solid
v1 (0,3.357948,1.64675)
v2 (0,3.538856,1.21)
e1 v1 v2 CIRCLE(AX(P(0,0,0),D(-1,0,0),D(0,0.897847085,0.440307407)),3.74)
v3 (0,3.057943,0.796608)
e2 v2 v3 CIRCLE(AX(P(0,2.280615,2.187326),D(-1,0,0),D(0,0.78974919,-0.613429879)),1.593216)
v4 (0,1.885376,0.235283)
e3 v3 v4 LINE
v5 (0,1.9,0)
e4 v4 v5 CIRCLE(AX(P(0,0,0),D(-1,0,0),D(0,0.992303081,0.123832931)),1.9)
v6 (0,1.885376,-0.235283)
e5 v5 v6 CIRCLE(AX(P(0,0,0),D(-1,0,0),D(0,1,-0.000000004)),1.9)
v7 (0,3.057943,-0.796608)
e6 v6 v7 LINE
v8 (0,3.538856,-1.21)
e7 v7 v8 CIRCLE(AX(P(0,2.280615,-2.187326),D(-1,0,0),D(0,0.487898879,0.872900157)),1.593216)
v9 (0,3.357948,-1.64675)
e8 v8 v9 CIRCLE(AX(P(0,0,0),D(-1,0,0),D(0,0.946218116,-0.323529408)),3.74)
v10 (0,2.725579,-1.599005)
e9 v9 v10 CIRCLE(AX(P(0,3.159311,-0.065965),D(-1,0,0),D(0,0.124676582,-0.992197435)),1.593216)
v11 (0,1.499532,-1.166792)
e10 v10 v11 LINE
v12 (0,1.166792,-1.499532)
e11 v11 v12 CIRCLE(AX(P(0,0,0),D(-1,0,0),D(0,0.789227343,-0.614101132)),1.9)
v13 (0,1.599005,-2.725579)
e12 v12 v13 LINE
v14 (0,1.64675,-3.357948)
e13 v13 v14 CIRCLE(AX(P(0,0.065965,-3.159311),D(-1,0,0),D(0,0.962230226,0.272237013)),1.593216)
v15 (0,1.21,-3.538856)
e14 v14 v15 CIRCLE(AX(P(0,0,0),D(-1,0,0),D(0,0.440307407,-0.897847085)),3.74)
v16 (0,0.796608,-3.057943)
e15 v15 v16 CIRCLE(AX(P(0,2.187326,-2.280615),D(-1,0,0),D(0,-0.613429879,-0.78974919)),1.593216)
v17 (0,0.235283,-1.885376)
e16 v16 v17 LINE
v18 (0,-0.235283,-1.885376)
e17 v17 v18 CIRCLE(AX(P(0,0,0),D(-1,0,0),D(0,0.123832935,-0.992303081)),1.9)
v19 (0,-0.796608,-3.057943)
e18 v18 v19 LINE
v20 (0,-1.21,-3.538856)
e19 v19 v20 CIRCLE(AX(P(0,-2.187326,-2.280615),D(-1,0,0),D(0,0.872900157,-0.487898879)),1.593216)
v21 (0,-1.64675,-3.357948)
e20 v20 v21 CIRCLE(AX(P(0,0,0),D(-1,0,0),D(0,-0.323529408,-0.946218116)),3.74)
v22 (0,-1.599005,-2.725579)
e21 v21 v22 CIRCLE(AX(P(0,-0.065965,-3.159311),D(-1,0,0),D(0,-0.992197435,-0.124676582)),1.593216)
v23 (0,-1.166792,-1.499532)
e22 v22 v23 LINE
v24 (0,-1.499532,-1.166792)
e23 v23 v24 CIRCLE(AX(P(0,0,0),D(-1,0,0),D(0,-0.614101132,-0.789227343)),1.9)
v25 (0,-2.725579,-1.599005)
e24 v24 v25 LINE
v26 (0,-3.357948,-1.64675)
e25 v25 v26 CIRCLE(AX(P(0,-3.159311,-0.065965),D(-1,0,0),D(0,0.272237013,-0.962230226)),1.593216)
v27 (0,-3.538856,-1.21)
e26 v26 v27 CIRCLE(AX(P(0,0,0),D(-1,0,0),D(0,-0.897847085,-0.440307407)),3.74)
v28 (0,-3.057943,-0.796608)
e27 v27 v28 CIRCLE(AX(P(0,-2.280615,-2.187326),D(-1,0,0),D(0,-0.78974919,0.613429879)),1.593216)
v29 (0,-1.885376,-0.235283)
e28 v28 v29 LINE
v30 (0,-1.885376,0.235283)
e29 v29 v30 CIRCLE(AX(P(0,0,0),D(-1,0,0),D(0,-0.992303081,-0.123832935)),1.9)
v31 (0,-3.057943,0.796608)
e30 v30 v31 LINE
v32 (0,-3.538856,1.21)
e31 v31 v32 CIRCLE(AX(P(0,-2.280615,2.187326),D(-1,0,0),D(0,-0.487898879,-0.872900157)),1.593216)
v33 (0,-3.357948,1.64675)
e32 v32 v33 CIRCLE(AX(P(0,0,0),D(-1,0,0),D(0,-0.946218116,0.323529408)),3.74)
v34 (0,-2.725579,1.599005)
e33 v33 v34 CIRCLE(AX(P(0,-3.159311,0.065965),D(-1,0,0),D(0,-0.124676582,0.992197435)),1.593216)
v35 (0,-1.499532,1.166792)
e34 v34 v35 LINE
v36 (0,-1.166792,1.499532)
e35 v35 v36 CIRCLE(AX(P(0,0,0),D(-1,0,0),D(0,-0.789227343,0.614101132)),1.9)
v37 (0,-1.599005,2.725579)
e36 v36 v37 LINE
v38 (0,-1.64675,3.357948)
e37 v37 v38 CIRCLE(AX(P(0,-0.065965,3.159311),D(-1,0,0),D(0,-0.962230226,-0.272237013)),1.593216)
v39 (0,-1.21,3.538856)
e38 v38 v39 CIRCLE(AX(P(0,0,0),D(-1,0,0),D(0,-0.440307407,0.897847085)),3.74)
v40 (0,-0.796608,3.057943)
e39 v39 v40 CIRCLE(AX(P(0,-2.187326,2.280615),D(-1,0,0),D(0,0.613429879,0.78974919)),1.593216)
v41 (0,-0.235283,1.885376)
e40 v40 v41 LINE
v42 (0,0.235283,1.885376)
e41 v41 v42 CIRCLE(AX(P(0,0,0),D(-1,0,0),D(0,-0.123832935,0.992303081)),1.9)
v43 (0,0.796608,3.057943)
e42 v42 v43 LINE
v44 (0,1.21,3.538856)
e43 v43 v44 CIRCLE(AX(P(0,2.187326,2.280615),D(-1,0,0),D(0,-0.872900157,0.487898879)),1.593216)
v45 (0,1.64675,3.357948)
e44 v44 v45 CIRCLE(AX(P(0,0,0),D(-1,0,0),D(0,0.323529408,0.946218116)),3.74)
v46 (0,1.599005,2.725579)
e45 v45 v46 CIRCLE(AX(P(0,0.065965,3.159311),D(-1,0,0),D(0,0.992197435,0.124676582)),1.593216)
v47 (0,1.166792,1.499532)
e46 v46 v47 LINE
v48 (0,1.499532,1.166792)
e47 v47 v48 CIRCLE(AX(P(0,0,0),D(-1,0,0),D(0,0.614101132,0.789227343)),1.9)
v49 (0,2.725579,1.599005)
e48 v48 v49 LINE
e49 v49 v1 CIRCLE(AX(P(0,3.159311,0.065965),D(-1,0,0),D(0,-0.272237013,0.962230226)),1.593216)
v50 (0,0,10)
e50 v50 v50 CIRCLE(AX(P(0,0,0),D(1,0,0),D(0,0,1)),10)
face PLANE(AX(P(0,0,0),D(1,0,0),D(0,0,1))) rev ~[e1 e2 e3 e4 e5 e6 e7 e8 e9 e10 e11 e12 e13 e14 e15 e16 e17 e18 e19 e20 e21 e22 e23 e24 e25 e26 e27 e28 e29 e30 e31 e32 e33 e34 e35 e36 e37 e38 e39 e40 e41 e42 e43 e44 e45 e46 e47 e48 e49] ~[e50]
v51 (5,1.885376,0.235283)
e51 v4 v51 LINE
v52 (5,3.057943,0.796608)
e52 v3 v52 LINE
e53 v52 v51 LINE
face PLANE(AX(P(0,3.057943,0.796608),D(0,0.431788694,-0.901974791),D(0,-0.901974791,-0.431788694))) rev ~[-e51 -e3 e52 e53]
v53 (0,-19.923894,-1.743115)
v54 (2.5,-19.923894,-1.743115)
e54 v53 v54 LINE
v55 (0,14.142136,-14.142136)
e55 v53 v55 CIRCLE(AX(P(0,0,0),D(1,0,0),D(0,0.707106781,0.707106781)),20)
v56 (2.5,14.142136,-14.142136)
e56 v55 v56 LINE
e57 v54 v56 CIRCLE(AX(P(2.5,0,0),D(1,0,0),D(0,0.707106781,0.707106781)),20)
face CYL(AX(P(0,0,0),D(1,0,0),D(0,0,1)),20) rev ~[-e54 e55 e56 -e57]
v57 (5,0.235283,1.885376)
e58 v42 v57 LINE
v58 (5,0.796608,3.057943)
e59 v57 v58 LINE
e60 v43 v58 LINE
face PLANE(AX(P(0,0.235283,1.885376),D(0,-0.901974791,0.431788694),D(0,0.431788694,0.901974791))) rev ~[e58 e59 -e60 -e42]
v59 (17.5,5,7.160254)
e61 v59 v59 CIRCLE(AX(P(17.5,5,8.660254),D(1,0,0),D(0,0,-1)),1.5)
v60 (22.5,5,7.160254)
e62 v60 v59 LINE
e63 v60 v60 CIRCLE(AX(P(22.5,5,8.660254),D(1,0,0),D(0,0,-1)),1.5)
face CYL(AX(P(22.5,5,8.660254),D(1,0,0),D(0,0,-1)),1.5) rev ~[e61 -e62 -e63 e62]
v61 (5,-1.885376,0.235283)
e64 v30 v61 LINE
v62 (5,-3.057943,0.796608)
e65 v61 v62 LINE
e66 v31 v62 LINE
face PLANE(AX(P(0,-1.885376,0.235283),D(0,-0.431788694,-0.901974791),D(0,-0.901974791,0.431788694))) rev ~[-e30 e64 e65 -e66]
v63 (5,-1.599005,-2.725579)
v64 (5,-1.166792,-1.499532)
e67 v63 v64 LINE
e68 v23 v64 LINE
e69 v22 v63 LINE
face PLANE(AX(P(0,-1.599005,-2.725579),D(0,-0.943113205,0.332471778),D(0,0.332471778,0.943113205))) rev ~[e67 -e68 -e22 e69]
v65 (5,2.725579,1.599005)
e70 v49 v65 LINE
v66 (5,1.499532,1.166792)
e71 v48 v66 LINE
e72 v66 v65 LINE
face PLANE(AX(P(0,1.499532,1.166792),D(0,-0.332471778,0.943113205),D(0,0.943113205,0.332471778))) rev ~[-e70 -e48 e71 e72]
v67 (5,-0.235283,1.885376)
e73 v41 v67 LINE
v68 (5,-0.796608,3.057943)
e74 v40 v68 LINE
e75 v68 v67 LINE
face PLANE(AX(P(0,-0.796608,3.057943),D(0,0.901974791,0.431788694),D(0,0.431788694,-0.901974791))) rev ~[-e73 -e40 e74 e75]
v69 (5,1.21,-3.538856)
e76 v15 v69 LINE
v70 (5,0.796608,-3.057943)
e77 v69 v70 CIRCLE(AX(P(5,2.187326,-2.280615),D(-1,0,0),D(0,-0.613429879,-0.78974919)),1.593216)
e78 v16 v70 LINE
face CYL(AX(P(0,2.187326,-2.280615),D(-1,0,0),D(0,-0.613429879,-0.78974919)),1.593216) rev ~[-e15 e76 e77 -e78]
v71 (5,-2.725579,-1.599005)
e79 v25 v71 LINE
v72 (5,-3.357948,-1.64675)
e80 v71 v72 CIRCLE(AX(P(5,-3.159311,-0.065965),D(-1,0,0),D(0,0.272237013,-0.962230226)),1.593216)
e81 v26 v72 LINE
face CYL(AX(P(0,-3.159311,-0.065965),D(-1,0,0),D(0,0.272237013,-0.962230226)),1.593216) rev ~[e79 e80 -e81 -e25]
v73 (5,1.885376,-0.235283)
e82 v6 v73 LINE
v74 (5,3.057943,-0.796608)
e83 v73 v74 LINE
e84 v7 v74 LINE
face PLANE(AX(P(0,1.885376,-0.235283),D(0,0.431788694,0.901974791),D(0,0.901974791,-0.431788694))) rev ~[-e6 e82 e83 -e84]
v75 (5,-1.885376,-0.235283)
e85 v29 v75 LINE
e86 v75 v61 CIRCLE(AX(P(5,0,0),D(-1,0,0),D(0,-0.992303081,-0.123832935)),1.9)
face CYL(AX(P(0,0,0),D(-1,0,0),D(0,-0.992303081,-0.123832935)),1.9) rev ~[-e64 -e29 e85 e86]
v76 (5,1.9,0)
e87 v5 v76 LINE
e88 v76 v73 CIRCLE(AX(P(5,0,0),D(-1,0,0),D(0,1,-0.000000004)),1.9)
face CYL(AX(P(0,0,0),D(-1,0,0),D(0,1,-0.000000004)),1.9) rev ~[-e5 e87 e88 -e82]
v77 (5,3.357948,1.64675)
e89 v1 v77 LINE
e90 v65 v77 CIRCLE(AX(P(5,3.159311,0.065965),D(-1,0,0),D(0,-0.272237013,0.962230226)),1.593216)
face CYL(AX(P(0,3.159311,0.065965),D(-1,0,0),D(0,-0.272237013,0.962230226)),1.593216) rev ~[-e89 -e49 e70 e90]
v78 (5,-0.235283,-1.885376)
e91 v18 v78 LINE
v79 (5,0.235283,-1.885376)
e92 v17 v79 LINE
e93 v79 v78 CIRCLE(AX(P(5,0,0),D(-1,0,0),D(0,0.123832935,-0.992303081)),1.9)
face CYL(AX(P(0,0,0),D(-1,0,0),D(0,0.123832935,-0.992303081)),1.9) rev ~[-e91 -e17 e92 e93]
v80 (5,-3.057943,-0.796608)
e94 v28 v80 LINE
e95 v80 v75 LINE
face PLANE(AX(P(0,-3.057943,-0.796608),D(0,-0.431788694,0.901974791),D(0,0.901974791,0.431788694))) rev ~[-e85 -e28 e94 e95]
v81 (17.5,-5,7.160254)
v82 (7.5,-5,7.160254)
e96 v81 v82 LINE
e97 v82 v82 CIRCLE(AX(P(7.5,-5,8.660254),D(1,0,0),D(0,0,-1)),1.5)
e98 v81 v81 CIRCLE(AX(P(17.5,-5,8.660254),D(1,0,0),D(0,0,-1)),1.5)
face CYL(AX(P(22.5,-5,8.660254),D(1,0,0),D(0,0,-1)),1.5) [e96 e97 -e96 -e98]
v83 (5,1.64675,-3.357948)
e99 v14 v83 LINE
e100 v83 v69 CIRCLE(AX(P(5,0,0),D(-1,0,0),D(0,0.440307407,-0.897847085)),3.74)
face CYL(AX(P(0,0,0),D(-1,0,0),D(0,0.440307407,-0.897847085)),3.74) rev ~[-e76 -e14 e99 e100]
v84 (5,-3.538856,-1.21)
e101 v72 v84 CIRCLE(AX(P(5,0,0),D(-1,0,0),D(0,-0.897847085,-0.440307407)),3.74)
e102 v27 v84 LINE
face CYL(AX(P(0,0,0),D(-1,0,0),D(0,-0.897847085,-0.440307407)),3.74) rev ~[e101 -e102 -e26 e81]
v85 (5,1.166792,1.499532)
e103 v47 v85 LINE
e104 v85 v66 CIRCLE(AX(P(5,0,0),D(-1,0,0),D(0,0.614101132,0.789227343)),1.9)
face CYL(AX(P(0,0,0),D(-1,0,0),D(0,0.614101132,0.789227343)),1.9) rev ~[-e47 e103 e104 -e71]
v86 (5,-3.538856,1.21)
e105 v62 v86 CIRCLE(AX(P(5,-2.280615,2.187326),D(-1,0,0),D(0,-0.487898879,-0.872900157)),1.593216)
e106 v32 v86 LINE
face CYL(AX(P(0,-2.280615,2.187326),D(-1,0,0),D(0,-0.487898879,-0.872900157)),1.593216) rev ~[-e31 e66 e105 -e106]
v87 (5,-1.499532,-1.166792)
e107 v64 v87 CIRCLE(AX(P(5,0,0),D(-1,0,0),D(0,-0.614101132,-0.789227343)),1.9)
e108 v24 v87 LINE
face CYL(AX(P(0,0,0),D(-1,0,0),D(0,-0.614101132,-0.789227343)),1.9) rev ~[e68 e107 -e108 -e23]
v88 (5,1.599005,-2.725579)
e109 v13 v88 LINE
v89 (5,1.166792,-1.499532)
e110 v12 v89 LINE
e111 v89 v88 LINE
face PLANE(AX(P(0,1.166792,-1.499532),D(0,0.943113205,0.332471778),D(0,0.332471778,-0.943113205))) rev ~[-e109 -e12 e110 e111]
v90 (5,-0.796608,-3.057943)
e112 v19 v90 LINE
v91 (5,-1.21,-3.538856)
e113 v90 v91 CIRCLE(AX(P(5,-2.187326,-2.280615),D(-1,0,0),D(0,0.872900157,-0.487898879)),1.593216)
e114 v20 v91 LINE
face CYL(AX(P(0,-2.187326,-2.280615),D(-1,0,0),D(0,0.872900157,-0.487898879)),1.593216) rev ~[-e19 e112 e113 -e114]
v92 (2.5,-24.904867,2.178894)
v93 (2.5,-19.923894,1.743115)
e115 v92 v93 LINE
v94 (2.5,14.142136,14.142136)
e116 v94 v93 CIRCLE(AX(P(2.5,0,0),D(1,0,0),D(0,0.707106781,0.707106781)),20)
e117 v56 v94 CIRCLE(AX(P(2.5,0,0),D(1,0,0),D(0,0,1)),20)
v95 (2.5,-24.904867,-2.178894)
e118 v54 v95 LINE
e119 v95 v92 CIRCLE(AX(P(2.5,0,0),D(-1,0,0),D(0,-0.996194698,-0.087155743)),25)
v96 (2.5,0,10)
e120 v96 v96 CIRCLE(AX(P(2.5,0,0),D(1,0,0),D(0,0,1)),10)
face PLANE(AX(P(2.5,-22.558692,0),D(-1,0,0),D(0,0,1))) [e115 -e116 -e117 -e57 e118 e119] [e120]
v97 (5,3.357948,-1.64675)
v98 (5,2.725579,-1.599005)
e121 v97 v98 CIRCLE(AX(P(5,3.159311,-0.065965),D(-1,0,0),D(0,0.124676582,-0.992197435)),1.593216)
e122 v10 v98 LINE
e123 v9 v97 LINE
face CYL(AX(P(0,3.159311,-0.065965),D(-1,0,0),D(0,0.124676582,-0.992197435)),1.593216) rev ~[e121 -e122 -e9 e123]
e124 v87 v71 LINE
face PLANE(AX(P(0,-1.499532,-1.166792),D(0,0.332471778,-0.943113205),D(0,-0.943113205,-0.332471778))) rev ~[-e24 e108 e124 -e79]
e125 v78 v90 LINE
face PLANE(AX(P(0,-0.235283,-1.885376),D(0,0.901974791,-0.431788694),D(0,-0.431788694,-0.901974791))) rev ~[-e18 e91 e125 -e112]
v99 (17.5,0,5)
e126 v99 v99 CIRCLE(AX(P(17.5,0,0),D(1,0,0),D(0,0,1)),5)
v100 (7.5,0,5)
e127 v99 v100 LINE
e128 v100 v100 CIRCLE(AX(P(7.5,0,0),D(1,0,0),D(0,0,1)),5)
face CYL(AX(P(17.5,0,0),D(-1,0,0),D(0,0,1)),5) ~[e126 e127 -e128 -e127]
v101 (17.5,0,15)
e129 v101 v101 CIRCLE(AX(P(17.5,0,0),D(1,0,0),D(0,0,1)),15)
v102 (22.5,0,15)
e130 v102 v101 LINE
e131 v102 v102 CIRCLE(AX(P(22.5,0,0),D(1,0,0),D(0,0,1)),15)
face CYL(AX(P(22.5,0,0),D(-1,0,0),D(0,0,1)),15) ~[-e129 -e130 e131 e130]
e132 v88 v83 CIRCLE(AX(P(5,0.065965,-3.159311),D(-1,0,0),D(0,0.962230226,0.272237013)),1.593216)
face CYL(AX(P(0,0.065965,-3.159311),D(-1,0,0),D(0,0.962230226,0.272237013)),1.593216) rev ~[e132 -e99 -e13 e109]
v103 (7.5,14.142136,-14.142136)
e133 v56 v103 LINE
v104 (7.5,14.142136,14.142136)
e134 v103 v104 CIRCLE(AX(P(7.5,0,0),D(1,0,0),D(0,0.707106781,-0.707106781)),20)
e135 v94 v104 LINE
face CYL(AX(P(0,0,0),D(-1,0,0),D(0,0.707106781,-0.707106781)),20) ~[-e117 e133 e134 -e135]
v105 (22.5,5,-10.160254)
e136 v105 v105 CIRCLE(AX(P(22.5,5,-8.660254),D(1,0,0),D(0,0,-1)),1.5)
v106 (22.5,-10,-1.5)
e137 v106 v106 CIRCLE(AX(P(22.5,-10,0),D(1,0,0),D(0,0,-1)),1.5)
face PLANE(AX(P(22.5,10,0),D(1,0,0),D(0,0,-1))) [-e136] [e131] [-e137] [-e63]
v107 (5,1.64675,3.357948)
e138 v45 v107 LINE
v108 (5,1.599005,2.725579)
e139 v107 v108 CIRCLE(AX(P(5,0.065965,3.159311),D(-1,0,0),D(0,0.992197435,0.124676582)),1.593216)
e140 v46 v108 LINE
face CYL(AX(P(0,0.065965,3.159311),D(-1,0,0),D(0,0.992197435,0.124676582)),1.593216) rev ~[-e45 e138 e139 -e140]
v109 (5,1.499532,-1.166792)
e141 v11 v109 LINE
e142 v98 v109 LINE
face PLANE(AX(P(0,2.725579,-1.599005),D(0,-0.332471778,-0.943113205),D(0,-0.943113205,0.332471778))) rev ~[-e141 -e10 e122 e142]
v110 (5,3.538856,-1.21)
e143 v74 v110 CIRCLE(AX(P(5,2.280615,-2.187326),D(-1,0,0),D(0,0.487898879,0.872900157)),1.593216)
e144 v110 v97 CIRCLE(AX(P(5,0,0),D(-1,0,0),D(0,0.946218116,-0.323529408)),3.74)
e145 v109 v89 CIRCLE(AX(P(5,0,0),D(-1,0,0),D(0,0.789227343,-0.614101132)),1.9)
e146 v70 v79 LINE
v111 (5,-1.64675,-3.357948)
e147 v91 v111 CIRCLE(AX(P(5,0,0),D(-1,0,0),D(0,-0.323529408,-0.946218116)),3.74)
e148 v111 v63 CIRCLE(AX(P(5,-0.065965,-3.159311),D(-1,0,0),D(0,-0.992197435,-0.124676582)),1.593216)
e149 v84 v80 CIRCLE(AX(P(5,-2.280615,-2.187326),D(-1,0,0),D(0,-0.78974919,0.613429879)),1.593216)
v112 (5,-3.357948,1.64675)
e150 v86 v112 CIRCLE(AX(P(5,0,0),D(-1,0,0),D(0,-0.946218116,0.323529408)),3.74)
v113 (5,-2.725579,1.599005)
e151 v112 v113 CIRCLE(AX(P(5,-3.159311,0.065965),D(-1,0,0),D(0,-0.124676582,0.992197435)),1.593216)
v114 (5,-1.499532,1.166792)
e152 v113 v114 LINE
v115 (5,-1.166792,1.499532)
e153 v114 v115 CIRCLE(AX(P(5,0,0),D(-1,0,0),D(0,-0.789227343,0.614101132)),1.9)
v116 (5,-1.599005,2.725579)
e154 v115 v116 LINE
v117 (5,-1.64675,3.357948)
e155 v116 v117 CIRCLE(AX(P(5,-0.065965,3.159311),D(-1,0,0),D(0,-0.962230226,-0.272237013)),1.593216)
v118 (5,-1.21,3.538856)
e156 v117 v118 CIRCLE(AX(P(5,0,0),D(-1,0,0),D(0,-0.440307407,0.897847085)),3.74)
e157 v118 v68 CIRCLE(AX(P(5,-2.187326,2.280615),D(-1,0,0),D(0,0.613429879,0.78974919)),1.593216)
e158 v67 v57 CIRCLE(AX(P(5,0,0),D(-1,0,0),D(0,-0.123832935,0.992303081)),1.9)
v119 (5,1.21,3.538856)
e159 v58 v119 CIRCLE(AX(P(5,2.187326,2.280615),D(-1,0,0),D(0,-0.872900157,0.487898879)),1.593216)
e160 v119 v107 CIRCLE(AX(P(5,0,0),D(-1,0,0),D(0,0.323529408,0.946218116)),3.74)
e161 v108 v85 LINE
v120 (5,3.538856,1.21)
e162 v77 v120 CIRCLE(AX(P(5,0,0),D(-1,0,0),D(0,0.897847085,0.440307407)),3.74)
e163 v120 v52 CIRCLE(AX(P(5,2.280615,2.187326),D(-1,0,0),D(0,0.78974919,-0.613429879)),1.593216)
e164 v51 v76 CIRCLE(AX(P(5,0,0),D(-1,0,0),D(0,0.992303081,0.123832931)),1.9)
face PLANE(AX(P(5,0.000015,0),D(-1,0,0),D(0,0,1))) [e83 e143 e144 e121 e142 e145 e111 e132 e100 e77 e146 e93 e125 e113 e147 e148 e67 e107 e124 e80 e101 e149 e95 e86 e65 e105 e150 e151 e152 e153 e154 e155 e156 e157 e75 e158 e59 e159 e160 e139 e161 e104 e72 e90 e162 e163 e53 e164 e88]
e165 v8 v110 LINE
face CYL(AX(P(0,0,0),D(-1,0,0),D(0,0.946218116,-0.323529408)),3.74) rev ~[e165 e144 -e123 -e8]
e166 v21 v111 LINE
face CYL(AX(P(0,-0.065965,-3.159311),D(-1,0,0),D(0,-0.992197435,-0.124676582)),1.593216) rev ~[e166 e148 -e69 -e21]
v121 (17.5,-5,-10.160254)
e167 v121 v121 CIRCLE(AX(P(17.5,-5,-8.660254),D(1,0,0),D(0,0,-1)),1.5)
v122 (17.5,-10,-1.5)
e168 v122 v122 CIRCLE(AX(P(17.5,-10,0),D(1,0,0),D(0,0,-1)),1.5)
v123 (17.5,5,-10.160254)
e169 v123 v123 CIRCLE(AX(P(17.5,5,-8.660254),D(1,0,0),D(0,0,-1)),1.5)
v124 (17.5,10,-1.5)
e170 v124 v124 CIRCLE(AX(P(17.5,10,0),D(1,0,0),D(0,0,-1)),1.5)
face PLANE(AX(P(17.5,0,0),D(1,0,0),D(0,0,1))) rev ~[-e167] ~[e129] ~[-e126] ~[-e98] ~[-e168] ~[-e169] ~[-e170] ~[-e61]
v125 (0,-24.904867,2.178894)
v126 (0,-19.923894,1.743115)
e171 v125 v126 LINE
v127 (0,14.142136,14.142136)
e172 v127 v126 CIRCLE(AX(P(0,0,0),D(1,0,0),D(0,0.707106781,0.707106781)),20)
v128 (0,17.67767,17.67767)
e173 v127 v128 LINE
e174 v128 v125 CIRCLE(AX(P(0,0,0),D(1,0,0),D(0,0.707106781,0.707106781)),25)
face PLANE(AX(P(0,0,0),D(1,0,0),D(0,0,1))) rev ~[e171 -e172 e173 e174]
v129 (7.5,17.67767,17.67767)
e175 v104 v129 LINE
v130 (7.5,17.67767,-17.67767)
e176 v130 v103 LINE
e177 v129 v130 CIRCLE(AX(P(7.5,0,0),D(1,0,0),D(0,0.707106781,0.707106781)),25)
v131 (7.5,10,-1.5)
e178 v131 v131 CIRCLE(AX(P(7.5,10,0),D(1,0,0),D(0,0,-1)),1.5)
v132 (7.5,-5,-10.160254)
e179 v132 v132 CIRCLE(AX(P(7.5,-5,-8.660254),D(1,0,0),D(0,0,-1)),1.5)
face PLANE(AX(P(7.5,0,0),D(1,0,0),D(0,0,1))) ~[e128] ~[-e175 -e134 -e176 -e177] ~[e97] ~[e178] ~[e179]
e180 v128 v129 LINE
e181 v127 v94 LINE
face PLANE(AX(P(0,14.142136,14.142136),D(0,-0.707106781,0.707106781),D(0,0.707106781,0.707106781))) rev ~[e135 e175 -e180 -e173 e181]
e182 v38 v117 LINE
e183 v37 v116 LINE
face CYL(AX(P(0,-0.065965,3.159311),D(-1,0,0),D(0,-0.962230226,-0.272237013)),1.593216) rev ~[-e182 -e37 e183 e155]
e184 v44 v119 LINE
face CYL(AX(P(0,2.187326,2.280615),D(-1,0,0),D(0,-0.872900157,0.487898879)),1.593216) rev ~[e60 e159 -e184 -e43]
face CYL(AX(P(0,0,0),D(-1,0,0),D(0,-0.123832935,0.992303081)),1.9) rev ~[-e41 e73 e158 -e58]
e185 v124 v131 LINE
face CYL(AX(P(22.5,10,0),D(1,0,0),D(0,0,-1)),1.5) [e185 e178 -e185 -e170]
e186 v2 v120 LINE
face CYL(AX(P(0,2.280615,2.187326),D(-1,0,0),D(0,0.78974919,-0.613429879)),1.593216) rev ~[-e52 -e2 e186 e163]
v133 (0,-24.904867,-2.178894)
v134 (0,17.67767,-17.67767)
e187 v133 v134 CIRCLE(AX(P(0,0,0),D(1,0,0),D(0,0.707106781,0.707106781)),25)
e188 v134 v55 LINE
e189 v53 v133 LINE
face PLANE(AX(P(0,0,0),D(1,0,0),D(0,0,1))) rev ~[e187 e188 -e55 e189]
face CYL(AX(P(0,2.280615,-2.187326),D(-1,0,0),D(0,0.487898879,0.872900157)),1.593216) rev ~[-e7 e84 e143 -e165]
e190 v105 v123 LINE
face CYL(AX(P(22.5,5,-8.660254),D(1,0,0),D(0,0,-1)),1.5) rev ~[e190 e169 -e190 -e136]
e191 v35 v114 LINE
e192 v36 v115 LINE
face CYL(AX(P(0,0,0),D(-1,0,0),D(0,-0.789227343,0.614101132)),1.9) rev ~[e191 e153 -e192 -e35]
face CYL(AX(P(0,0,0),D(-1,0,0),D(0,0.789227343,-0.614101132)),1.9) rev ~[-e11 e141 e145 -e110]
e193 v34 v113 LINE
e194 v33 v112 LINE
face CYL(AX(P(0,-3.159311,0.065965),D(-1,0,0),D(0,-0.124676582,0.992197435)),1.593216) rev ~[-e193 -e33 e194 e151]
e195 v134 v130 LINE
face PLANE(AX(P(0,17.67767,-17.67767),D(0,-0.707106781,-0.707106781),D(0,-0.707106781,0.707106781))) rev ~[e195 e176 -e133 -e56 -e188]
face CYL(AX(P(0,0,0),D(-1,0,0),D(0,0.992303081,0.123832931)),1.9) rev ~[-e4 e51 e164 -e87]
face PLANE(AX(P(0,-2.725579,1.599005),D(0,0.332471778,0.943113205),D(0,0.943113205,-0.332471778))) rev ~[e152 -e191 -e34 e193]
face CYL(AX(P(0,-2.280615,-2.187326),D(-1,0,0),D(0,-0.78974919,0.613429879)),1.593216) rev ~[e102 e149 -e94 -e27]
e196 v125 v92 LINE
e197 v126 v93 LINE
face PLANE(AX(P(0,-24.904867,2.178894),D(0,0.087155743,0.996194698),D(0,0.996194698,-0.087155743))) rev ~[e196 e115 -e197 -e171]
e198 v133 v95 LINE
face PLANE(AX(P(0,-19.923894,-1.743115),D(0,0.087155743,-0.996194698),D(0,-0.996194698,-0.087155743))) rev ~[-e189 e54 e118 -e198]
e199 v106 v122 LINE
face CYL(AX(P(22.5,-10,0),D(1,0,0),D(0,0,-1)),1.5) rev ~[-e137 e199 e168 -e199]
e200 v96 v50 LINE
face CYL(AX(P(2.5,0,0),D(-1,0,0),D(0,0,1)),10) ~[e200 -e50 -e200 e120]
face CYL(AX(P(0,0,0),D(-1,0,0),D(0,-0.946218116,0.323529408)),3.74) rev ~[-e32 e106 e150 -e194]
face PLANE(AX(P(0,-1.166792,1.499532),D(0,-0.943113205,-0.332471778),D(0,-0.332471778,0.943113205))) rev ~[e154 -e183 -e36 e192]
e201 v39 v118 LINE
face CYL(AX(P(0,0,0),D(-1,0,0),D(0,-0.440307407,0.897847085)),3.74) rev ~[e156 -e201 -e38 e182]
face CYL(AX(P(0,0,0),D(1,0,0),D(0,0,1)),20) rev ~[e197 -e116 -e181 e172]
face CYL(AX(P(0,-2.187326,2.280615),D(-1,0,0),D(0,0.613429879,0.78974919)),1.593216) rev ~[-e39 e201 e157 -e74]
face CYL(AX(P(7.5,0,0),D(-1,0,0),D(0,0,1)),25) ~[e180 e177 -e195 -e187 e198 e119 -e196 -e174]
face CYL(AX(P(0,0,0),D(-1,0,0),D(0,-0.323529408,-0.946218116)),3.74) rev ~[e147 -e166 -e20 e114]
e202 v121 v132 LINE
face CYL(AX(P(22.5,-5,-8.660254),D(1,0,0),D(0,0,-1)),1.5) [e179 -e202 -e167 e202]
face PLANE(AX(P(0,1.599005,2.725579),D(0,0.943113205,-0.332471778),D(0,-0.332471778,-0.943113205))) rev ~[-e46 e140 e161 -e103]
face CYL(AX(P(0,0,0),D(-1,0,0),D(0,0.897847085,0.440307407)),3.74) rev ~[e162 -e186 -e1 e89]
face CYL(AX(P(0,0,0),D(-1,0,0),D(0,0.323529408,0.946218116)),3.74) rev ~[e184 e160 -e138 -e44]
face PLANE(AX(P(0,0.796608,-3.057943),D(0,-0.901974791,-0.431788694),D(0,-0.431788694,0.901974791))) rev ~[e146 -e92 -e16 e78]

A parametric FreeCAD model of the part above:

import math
import FreeCAD as App
import Part
import Sketcher
Q = App.Units.Quantity


def add_polygon(sketch, points):
    """Adds a closed chain of lines whose ends are joined by coincident constraints."""
    first, n = sketch.GeometryCount, len(points)
    for a, b in zip(points, points[1:] + points[:1]):
        sketch.addGeometry(Part.LineSegment(App.Vector(*a, 0), App.Vector(*b, 0)), False)
    for i in range(n):
        sketch.addConstraint(Sketcher.Constraint("Coincident", first + i, 2, first + (i + 1) % n, 1))

doc = App.newDocument("Part")
params = doc.addObject("Spreadsheet::Sheet", "Params")
for row, (alias, value) in enumerate([
    ("sketch1_width", "5 mm"),
    ("sketch1_width2", "10 mm"),
    ("sketch1_height", "15 mm"),
    ("sketch1_width3", "22.5 mm"),
    ("sketch1_width4", "2.5 mm"),
    ("revolution_angle", "360 deg"),
    ("sketch2_radius", "20 mm"),
    ("sketch2_radius2", "25 mm"),
    ("pocket1_length", "7.5 mm"),
    ("sketch3_radius", "20 mm"),
    ("sketch3_radius2", "25 mm"),
    ("pocket2_length", "2.5 mm"),
    ("sketch4_diameter", "3 mm"),
    ("pocket3_length", "5 mm"),
    ("sketch5_diameter", "3 mm"),
    ("pad1_length", "15 mm"),
    ("sketch6_radius", "1.9 mm"),
    ("sketch6_radius2", "3.74 mm"),
    ("sketch6_length", "1.3 mm"),
    ("pocket4_length", "5 mm"),
], start=1):
    params.set(f"A{row}", alias)
    params.set(f"B{row}", "=" + value)
    params.setAlias(f"B{row}", alias)

body = doc.addObject("PartDesign::Body", "Body")

sketch1 = body.newObject("Sketcher::SketchObject", "Sketch")
sketch1.AttachmentSupport = (doc.getObject("XZ_Plane"), [""])
sketch1.MapMode = "FlatFace"
add_polygon(sketch1, [(0, 0), (22.5, 0), (22.5, -15), (17.5, -15), (17.5, -5), (7.5, -5), (7.5, -25), (0, -25), (0, -20), (2.5, -20), (2.5, -10), (0, -10)])
sketch1.addConstraint([
    Sketcher.Constraint("Horizontal", 0),
    Sketcher.Constraint("Vertical", 1),
    Sketcher.Constraint("Horizontal", 2),
    Sketcher.Constraint("Vertical", 3),
    Sketcher.Constraint("Horizontal", 4),
    Sketcher.Constraint("Vertical", 5),
    Sketcher.Constraint("Horizontal", 6),
    Sketcher.Constraint("Vertical", 7),
    Sketcher.Constraint("Horizontal", 8),
    Sketcher.Constraint("Vertical", 9),
    Sketcher.Constraint("Horizontal", 10),
    Sketcher.Constraint("Vertical", 11),
    Sketcher.Constraint("Coincident", 11, 2, -1, 1),
    Sketcher.Constraint("PointOnObject", 6, 2, -2),
    Sketcher.Constraint("Equal", 4, 3),
    Sketcher.Constraint("Equal", 2, 7),
    Sketcher.Constraint("Equal", 3, 9),
    Sketcher.Constraint("Equal", 9, 11),
    Sketcher.Constraint("DistanceX", 2, 2, 2, 1, Q("5 mm")),
    Sketcher.Constraint("DistanceX", 4, 2, 4, 1, Q("10 mm")),
    Sketcher.Constraint("DistanceY", 1, 2, 1, 1, Q("15 mm")),
    Sketcher.Constraint("DistanceX", 0, 1, 0, 2, Q("22.5 mm")),
    Sketcher.Constraint("DistanceX", 8, 1, 8, 2, Q("2.5 mm")),
])
sketch1.setExpression("Constraints[30]", "Params.sketch1_width")
sketch1.setExpression("Constraints[31]", "Params.sketch1_width2")
sketch1.setExpression("Constraints[32]", "Params.sketch1_height")
sketch1.setExpression("Constraints[33]", "Params.sketch1_width3")
sketch1.setExpression("Constraints[34]", "Params.sketch1_width4")
revolution = body.newObject("PartDesign::Revolution", "Revolution")
revolution.Profile = sketch1
revolution.ReferenceAxis = (sketch1, ["H_Axis"])
revolution.setExpression("Angle", "Params.revolution_angle")

sketch2 = body.newObject("Sketcher::SketchObject", "Sketch001")
sketch2.AttachmentSupport = (doc.getObject("YZ_Plane"), [""])
sketch2.MapMode = "FlatFace"
sketch2.addGeometry([
    Part.ArcOfCircle(Part.Circle(App.Vector(0, 0, 0), App.Vector(0, 0, 1), 20), math.radians(-45), math.radians(45)),
    Part.LineSegment(App.Vector(14.142136, 14.142136, 0), App.Vector(17.67767, 17.67767, 0)),
    Part.ArcOfCircle(Part.Circle(App.Vector(0, 0, 0), App.Vector(0, 0, 1), 25), math.radians(-45), math.radians(45)),
    Part.LineSegment(App.Vector(17.67767, -17.67767, 0), App.Vector(14.142136, -14.142136, 0)),
], False)
sketch2.addConstraint([
    Sketcher.Constraint("Coincident", 0, 2, 1, 1),
    Sketcher.Constraint("Coincident", 1, 2, 2, 2),
    Sketcher.Constraint("Coincident", 2, 1, 3, 1),
    Sketcher.Constraint("Coincident", 3, 2, 0, 1),
    Sketcher.Constraint("Coincident", 0, 3, -1, 1),
    Sketcher.Constraint("Coincident", 2, 3, -1, 1),
    Sketcher.Constraint("Perpendicular", 1, 3),
    Sketcher.Constraint("Vertical", 1, 2, 2, 1),
    Sketcher.Constraint("Vertical", 0, 2, 3, 2),
    Sketcher.Constraint("Radius", 0, Q("20 mm")),
    Sketcher.Constraint("Radius", 2, Q("25 mm")),
    Sketcher.Constraint("DistanceX", -1, 1, 1, 2, Q("17.67767 mm")),
])
sketch2.setExpression("Constraints[9]", "Params.sketch2_radius")
sketch2.setExpression("Constraints[10]", "Params.sketch2_radius2")
pocket1 = body.newObject("PartDesign::Pocket", "Pocket")
pocket1.Profile = sketch2
pocket1.setExpression("Length", "Params.pocket1_length")
pocket1.Reversed = True

sketch3 = body.newObject("Sketcher::SketchObject", "Sketch002")
sketch3.AttachmentSupport = (doc.getObject("YZ_Plane"), [""])
sketch3.MapMode = "FlatFace"
sketch3.addGeometry([
    Part.ArcOfCircle(Part.Circle(App.Vector(0, 0, 0), App.Vector(0, 0, 1), 20), math.radians(175), math.radians(185)),
    Part.LineSegment(App.Vector(-19.923894, -1.743115, 0), App.Vector(-24.904867, -2.178894, 0)),
    Part.ArcOfCircle(Part.Circle(App.Vector(0, 0, 0), App.Vector(0, 0, 1), 25), math.radians(175), math.radians(185)),
    Part.LineSegment(App.Vector(-24.904867, 2.178894, 0), App.Vector(-19.923894, 1.743115, 0)),
], False)
sketch3.addConstraint([
    Sketcher.Constraint("Coincident", 0, 2, 1, 1),
    Sketcher.Constraint("Coincident", 1, 2, 2, 2),
    Sketcher.Constraint("Coincident", 2, 1, 3, 1),
    Sketcher.Constraint("Coincident", 3, 2, 0, 1),
    Sketcher.Constraint("Coincident", 0, 3, -1, 1),
    Sketcher.Constraint("Coincident", 2, 3, -1, 1),
    Sketcher.Constraint("Vertical", 1, 2, 2, 1),
    Sketcher.Constraint("Vertical", 0, 2, 3, 2),
    Sketcher.Constraint("Radius", 0, Q("20 mm")),
    Sketcher.Constraint("Radius", 2, Q("25 mm")),
    Sketcher.Constraint("Angle", 1, Q("-175 deg")),
    Sketcher.Constraint("DistanceY", 0, 2, 2, 1, Q("3.922008 mm")),
])
sketch3.setExpression("Constraints[8]", "Params.sketch3_radius")
sketch3.setExpression("Constraints[9]", "Params.sketch3_radius2")
pocket2 = body.newObject("PartDesign::Pocket", "Pocket001")
pocket2.Profile = sketch3
pocket2.setExpression("Length", "Params.pocket2_length")
pocket2.Reversed = True

sketch4 = body.newObject("Sketcher::SketchObject", "Sketch003")
sketch4.AttachmentSupport = (doc.getObject("YZ_Plane"), [""])
sketch4.MapMode = "FlatFace"
sketch4.AttachmentOffset = App.Placement(App.Vector(0, 0, 22.5), App.Rotation())
sketch4.addGeometry([
    Part.Circle(App.Vector(-10, 0, 0), App.Vector(0, 0, 1), 1.5),
    Part.Circle(App.Vector(5, 8.660254, 0), App.Vector(0, 0, 1), 1.5),
    Part.Circle(App.Vector(5, -8.660254, 0), App.Vector(0, 0, 1), 1.5),
], False)
sketch4.addConstraint([
    Sketcher.Constraint("Equal", 0, 1),
    Sketcher.Constraint("Equal", 1, 2),
    Sketcher.Constraint("Symmetric", 1, 3, 2, 3, -1),
    Sketcher.Constraint("PointOnObject", 0, 3, -1),
    Sketcher.Constraint("Diameter", 0, Q("3 mm")),
    Sketcher.Constraint("DistanceX", 0, 3, -1, 1, Q("10 mm")),
    Sketcher.Constraint("DistanceX", -1, 1, 1, 3, Q("5 mm")),
    Sketcher.Constraint("DistanceY", 2, 3, 1, 3, Q("17.320508 mm")),
])
sketch4.setExpression("Constraints[4]", "Params.sketch4_diameter")
pocket3 = body.newObject("PartDesign::Pocket", "Pocket002")
pocket3.Profile = sketch4
pocket3.setExpression("Length", "Params.pocket3_length")

sketch5 = body.newObject("Sketcher::SketchObject", "Sketch004")
sketch5.AttachmentSupport = (doc.getObject("YZ_Plane"), [""])
sketch5.MapMode = "FlatFace"
sketch5.AttachmentOffset = App.Placement(App.Vector(0, 0, 22.5), App.Rotation())
sketch5.addGeometry([
    Part.Circle(App.Vector(10, 0, 0), App.Vector(0, 0, 1), 1.5),
    Part.Circle(App.Vector(-5, -8.660254, 0), App.Vector(0, 0, 1), 1.5),
    Part.Circle(App.Vector(-5, 8.660254, 0), App.Vector(0, 0, 1), 1.5),
], False)
sketch5.addConstraint([
    Sketcher.Constraint("Equal", 0, 1),
    Sketcher.Constraint("Equal", 1, 2),
    Sketcher.Constraint("Symmetric", 1, 3, 2, 3, -1),
    Sketcher.Constraint("PointOnObject", 0, 3, -1),
    Sketcher.Constraint("Diameter", 0, Q("3 mm")),
    Sketcher.Constraint("DistanceX", -1, 1, 0, 3, Q("10 mm")),
    Sketcher.Constraint("DistanceX", 1, 3, -1, 1, Q("5 mm")),
    Sketcher.Constraint("DistanceY", 1, 3, 2, 3, Q("17.320508 mm")),
])
sketch5.setExpression("Constraints[4]", "Params.sketch5_diameter")
pad1 = body.newObject("PartDesign::Pad", "Pad")
pad1.Profile = sketch5
pad1.setExpression("Length", "Params.pad1_length")
pad1.Reversed = True

sketch6 = body.newObject("Sketcher::SketchObject", "Sketch005")
sketch6.AttachmentSupport = (doc.getObject("YZ_Plane"), [""])
sketch6.MapMode = "FlatFace"
sketch6.addGeometry([
    Part.LineSegment(App.Vector(1.885376, -0.235283, 0), App.Vector(3.057943, -0.796608, 0)),
    Part.ArcOfCircle(Part.Circle(App.Vector(2.280615, -2.187326, 0), App.Vector(0, 0, 1), 1.593216), math.radians(37.837921), math.radians(60.797426)),
    Part.ArcOfCircle(Part.Circle(App.Vector(0, 0, 0), App.Vector(0, 0, 1), 3.74), math.radians(-26.123497), math.radians(-18.876503)),
    Part.ArcOfCircle(Part.Circle(App.Vector(3.159311, -0.065965, 0), App.Vector(0, 0, 1), 1.593216), math.radians(-105.797426), math.radians(-82.837921)),
    Part.LineSegment(App.Vector(2.725579, -1.599005, 0), App.Vector(1.499532, -1.166792, 0)),
    Part.ArcOfCircle(Part.Circle(App.Vector(0, 0, 0), App.Vector(0, 0, 1), 1.9), math.radians(-52.113364), math.radians(-37.886636)),
    Part.LineSegment(App.Vector(1.166792, -1.499532, 0), App.Vector(1.599005, -2.725579, 0)),
    Part.ArcOfCircle(Part.Circle(App.Vector(0.065965, -3.159311, 0), App.Vector(0, 0, 1), 1.593216), math.radians(-7.162079), math.radians(15.797426)),
    Part.ArcOfCircle(Part.Circle(App.Vector(0, 0, 0), App.Vector(0, 0, 1), 3.74), math.radians(-71.123497), math.radians(-63.876503)),
    Part.ArcOfCircle(Part.Circle(App.Vector(2.187326, -2.280615, 0), App.Vector(0, 0, 1), 1.593216), math.radians(-150.797426), math.radians(-127.837921)),
    Part.LineSegment(App.Vector(0.796608, -3.057943, 0), App.Vector(0.235283, -1.885376, 0)),
    Part.ArcOfCircle(Part.Circle(App.Vector(0, 0, 0), App.Vector(0, 0, 1), 1.9), math.radians(-97.113364), math.radians(-82.886636)),
    Part.LineSegment(App.Vector(-0.235283, -1.885376, 0), App.Vector(-0.796608, -3.057943, 0)),
    Part.ArcOfCircle(Part.Circle(App.Vector(-2.187326, -2.280615, 0), App.Vector(0, 0, 1), 1.593216), math.radians(-52.162079), math.radians(-29.202574)),
    Part.ArcOfCircle(Part.Circle(App.Vector(0, 0, 0), App.Vector(0, 0, 1), 3.74), math.radians(-116.123497), math.radians(-108.876503)),
    Part.ArcOfCircle(Part.Circle(App.Vector(-0.065965, -3.159311, 0), App.Vector(0, 0, 1), 1.593216), math.radians(164.202574), math.radians(187.162079)),
    Part.LineSegment(App.Vector(-1.599005, -2.725579, 0), App.Vector(-1.166792, -1.499532, 0)),
    Part.ArcOfCircle(Part.Circle(App.Vector(0, 0, 0), App.Vector(0, 0, 1), 1.9), math.radians(-142.113364), math.radians(-127.886636)),
    Part.LineSegment(App.Vector(-1.499532, -1.166792, 0), App.Vector(-2.725579, -1.599005, 0)),
    Part.ArcOfCircle(Part.Circle(App.Vector(-3.159311, -0.065965, 0), App.Vector(0, 0, 1), 1.593216), math.radians(-97.162079), math.radians(-74.202574)),
    Part.ArcOfCircle(Part.Circle(App.Vector(0, 0, 0), App.Vector(0, 0, 1), 3.74), math.radians(-161.123497), math.radians(-153.876503)),
    Part.ArcOfCircle(Part.Circle(App.Vector(-2.280615, -2.187326, 0), App.Vector(0, 0, 1), 1.593216), math.radians(119.202574), math.radians(142.162079)),
    Part.LineSegment(App.Vector(-3.057943, -0.796608, 0), App.Vector(-1.885376, -0.235283, 0)),
    Part.ArcOfCircle(Part.Circle(App.Vector(0, 0, 0), App.Vector(0, 0, 1), 1.9), math.radians(172.886636), math.radians(187.113364)),
    Part.LineSegment(App.Vector(-1.885376, 0.235283, 0), App.Vector(-3.057943, 0.796608, 0)),
    Part.ArcOfCircle(Part.Circle(App.Vector(-2.280615, 2.187326, 0), App.Vector(0, 0, 1), 1.593216), math.radians(-142.162079), math.radians(-119.202574)),
    Part.ArcOfCircle(Part.Circle(App.Vector(0, 0, 0), App.Vector(0, 0, 1), 3.74), math.radians(153.876503), math.radians(161.123497)),
    Part.ArcOfCircle(Part.Circle(App.Vector(-3.159311, 0.065965, 0), App.Vector(0, 0, 1), 1.593216), math.radians(74.202574), math.radians(97.162079)),
    Part.LineSegment(App.Vector(-2.725579, 1.599005, 0), App.Vector(-1.499532, 1.166792, 0)),
    Part.ArcOfCircle(Part.Circle(App.Vector(0, 0, 0), App.Vector(0, 0, 1), 1.9), math.radians(127.886636), math.radians(142.113364)),
    Part.LineSegment(App.Vector(-1.166792, 1.499532, 0), App.Vector(-1.599005, 2.725579, 0)),
    Part.ArcOfCircle(Part.Circle(App.Vector(-0.065965, 3.159311, 0), App.Vector(0, 0, 1), 1.593216), math.radians(172.837921), math.radians(195.797426)),
    Part.ArcOfCircle(Part.Circle(App.Vector(0, 0, 0), App.Vector(0, 0, 1), 3.74), math.radians(108.876503), math.radians(116.123497)),
    Part.ArcOfCircle(Part.Circle(App.Vector(-2.187326, 2.280615, 0), App.Vector(0, 0, 1), 1.593216), math.radians(29.202574), math.radians(52.162079)),
    Part.LineSegment(App.Vector(-0.796608, 3.057943, 0), App.Vector(-0.235283, 1.885376, 0)),
    Part.ArcOfCircle(Part.Circle(App.Vector(0, 0, 0), App.Vector(0, 0, 1), 1.9), math.radians(82.886636), math.radians(97.113364)),
    Part.LineSegment(App.Vector(0.235283, 1.885376, 0), App.Vector(0.796608, 3.057943, 0)),
    Part.ArcOfCircle(Part.Circle(App.Vector(2.187326, 2.280615, 0), App.Vector(0, 0, 1), 1.593216), math.radians(127.837921), math.radians(150.797426)),
    Part.ArcOfCircle(Part.Circle(App.Vector(0, 0, 0), App.Vector(0, 0, 1), 3.74), math.radians(63.876503), math.radians(71.123497)),
    Part.ArcOfCircle(Part.Circle(App.Vector(0.065965, 3.159311, 0), App.Vector(0, 0, 1), 1.593216), math.radians(-15.797426), math.radians(7.162079)),
    Part.LineSegment(App.Vector(1.599005, 2.725579, 0), App.Vector(1.166792, 1.499532, 0)),
    Part.ArcOfCircle(Part.Circle(App.Vector(0, 0, 0), App.Vector(0, 0, 1), 1.9), math.radians(37.886636), math.radians(52.113364)),
    Part.LineSegment(App.Vector(1.499532, 1.166792, 0), App.Vector(2.725579, 1.599005, 0)),
    Part.ArcOfCircle(Part.Circle(App.Vector(3.159311, 0.065965, 0), App.Vector(0, 0, 1), 1.593216), math.radians(82.837921), math.radians(105.797426)),
    Part.ArcOfCircle(Part.Circle(App.Vector(0, 0, 0), App.Vector(0, 0, 1), 3.74), math.radians(18.876503), math.radians(26.123497)),
    Part.ArcOfCircle(Part.Circle(App.Vector(2.280615, 2.187326, 0), App.Vector(0, 0, 1), 1.593216), math.radians(-60.797426), math.radians(-37.837921)),
    Part.LineSegment(App.Vector(3.057943, 0.796608, 0), App.Vector(1.885376, 0.235283, 0)),
    Part.ArcOfCircle(Part.Circle(App.Vector(0, 0, 0), App.Vector(0, 0, 1), 1.9), math.radians(0), math.radians(7.113364)),
    Part.ArcOfCircle(Part.Circle(App.Vector(0, 0, 0), App.Vector(0, 0, 1), 1.9), math.radians(-7.113364), math.radians(0)),
], False)
sketch6.addConstraint([
    Sketcher.Constraint("Coincident", 0, 2, 1, 2),
    Sketcher.Constraint("Coincident", 1, 1, 2, 2),
    Sketcher.Constraint("Coincident", 2, 1, 3, 2),
    Sketcher.Constraint("Coincident", 3, 1, 4, 1),
    Sketcher.Constraint("Coincident", 4, 2, 5, 2),
    Sketcher.Constraint("Coincident", 5, 1, 6, 1),
    Sketcher.Constraint("Coincident", 6, 2, 7, 2),
    Sketcher.Constraint("Coincident", 7, 1, 8, 2),
    Sketcher.Constraint("Coincident", 8, 1, 9, 2),
    Sketcher.Constraint("Coincident", 9, 1, 10, 1),
    Sketcher.Constraint("Coincident", 10, 2, 11, 2),
    Sketcher.Constraint("Coincident", 11, 1, 12, 1),
    Sketcher.Constraint("Coincident", 12, 2, 13, 2),
    Sketcher.Constraint("Coincident", 13, 1, 14, 2),
    Sketcher.Constraint("Coincident", 14, 1, 15, 2),
    Sketcher.Constraint("Coincident", 15, 1, 16, 1),
    Sketcher.Constraint("Coincident", 16, 2, 17, 2),
    Sketcher.Constraint("Coincident", 17, 1, 18, 1),
    Sketcher.Constraint("Coincident", 18, 2, 19, 2),
    Sketcher.Constraint("Coincident", 19, 1, 20, 2),
    Sketcher.Constraint("Coincident", 20, 1, 21, 2),
    Sketcher.Constraint("Coincident", 21, 1, 22, 1),
    Sketcher.Constraint("Coincident", 22, 2, 23, 2),
    Sketcher.Constraint("Coincident", 23, 1, 24, 1),
    Sketcher.Constraint("Coincident", 24, 2, 25, 2),
    Sketcher.Constraint("Coincident", 25, 1, 26, 2),
    Sketcher.Constraint("Coincident", 26, 1, 27, 2),
    Sketcher.Constraint("Coincident", 27, 1, 28, 1),
    Sketcher.Constraint("Coincident", 28, 2, 29, 2),
    Sketcher.Constraint("Coincident", 29, 1, 30, 1),
    Sketcher.Constraint("Coincident", 30, 2, 31, 2),
    Sketcher.Constraint("Coincident", 31, 1, 32, 2),
    Sketcher.Constraint("Coincident", 32, 1, 33, 2),
    Sketcher.Constraint("Coincident", 33, 1, 34, 1),
    Sketcher.Constraint("Coincident", 34, 2, 35, 2),
    Sketcher.Constraint("Coincident", 35, 1, 36, 1),
    Sketcher.Constraint("Coincident", 36, 2, 37, 2),
    Sketcher.Constraint("Coincident", 37, 1, 38, 2),
    Sketcher.Constraint("Coincident", 38, 1, 39, 2),
    Sketcher.Constraint("Coincident", 39, 1, 40, 1),
    Sketcher.Constraint("Coincident", 40, 2, 41, 2),
    Sketcher.Constraint("Coincident", 41, 1, 42, 1),
    Sketcher.Constraint("Coincident", 42, 2, 43, 2),
    Sketcher.Constraint("Coincident", 43, 1, 44, 2),
    Sketcher.Constraint("Coincident", 44, 1, 45, 2),
    Sketcher.Constraint("Coincident", 45, 1, 46, 1),
    Sketcher.Constraint("Coincident", 46, 2, 47, 2),
    Sketcher.Constraint("Tangent", 47, 1, 48, 2),
    Sketcher.Constraint("Coincident", 48, 1, 0, 1),
    Sketcher.Constraint("Coincident", 2, 3, -1, 1),
    Sketcher.Constraint("Coincident", 5, 3, -1, 1),
    Sketcher.Constraint("Coincident", 8, 3, -1, 1),
    Sketcher.Constraint("Coincident", 11, 3, -1, 1),
    Sketcher.Constraint("Coincident", 14, 3, -1, 1),
    Sketcher.Constraint("Coincident", 17, 3, -1, 1),
    Sketcher.Constraint("Coincident", 20, 3, -1, 1),
    Sketcher.Constraint("Coincident", 23, 3, -1, 1),
    Sketcher.Constraint("Coincident", 26, 3, -1, 1),
    Sketcher.Constraint("Coincident", 29, 3, -1, 1),
    Sketcher.Constraint("Coincident", 32, 3, -1, 1),
    Sketcher.Constraint("Coincident", 35, 3, -1, 1),
    Sketcher.Constraint("Coincident", 38, 3, -1, 1),
    Sketcher.Constraint("Coincident", 41, 3, -1, 1),
    Sketcher.Constraint("Coincident", 44, 3, -1, 1),
    Sketcher.Constraint("Coincident", 47, 3, -1, 1),
    Sketcher.Constraint("Equal", 1, 3),
    Sketcher.Constraint("Equal", 3, 7),
    Sketcher.Constraint("Equal", 2, 8),
    Sketcher.Constraint("Equal", 7, 9),
    Sketcher.Constraint("Equal", 5, 11),
    Sketcher.Constraint("Equal", 9, 13),
    Sketcher.Constraint("Equal", 8, 14),
    Sketcher.Constraint("Equal", 13, 15),
    Sketcher.Constraint("Equal", 11, 17),
    Sketcher.Constraint("Equal", 15, 19),
    Sketcher.Constraint("Equal", 14, 20),
    Sketcher.Constraint("Equal", 19, 21),
    Sketcher.Constraint("Equal", 17, 23),
    Sketcher.Constraint("Equal", 21, 25),
    Sketcher.Constraint("Equal", 20, 26),
    Sketcher.Constraint("Equal", 25, 27),
    Sketcher.Constraint("Equal", 23, 29),
    Sketcher.Constraint("Equal", 27, 31),
    Sketcher.Constraint("Equal", 26, 32),
    Sketcher.Constraint("Equal", 31, 33),
    Sketcher.Constraint("Equal", 29, 35),
    Sketcher.Constraint("Equal", 33, 37),
    Sketcher.Constraint("Equal", 32, 38),
    Sketcher.Constraint("Equal", 37, 39),
    Sketcher.Constraint("Equal", 35, 41),
    Sketcher.Constraint("Equal", 39, 43),
    Sketcher.Constraint("Equal", 38, 44),
    Sketcher.Constraint("Equal", 43, 45),
    Sketcher.Constraint("Equal", 41, 47),
    Sketcher.Constraint("Equal", 47, 48),
    Sketcher.Constraint("Symmetric", 1, 3, 25, 3, -1, 1),
    Sketcher.Constraint("Symmetric", 3, 3, 27, 3, -1, 1),
    Sketcher.Constraint("Symmetric", 7, 3, 31, 3, -1, 1),
    Sketcher.Constraint("Symmetric", 9, 3, 33, 3, -1, 1),
    Sketcher.Constraint("Symmetric", 13, 3, 37, 3, -1, 1),
    Sketcher.Constraint("Symmetric", 15, 3, 39, 3, -1, 1),
    Sketcher.Constraint("Symmetric", 19, 3, 43, 3, -1, 1),
    Sketcher.Constraint("Symmetric", 21, 3, 45, 3, -1, 1),
    Sketcher.Constraint("Symmetric", 9, 3, 13, 3, -2),
    Sketcher.Constraint("Symmetric", 7, 3, 15, 3, -2),
    Sketcher.Constraint("Symmetric", 3, 3, 19, 3, -2),
    Sketcher.Constraint("Symmetric", 1, 3, 21, 3, -2),
    Sketcher.Constraint("PointOnObject", 47, 1, -1),
    Sketcher.Constraint("Perpendicular", 0, 12),
    Sketcher.Constraint("Perpendicular", 4, 16),
    Sketcher.Constraint("Perpendicular", 6, 18),
    Sketcher.Constraint("Perpendicular", 10, 22),
    Sketcher.Constraint("Perpendicular", 12, 24),
    Sketcher.Constraint("Perpendicular", 16, 28),
    Sketcher.Constraint("Perpendicular", 18, 30),
    Sketcher.Constraint("Perpendicular", 22, 34),
    Sketcher.Constraint("Perpendicular", 24, 36),
    Sketcher.Constraint("Perpendicular", 28, 40),
    Sketcher.Constraint("Perpendicular", 30, 42),
    Sketcher.Constraint("Perpendicular", 34, 46),
    Sketcher.Constraint("Horizontal", 10, 2, 11, 1),
    Sketcher.Constraint("Horizontal", 9, 1, 12, 2),
    Sketcher.Constraint("Horizontal", 6, 2, 15, 1),
    Sketcher.Constraint("Horizontal", 5, 1, 16, 2),
    Sketcher.Constraint("Horizontal", 4, 2, 17, 1),
    Sketcher.Constraint("Horizontal", 0, 2, 21, 1),
    Sketcher.Constraint("Horizontal", 34, 2, 35, 1),
    Sketcher.Constraint("Horizontal", 30, 2, 39, 1),
    Sketcher.Constraint("Horizontal", 28, 2, 41, 1),
    Sketcher.Constraint("Horizontal", 24, 2, 45, 1),
    Sketcher.Constraint("Vertical", 22, 2, 23, 1),
    Sketcher.Constraint("Vertical", 18, 2, 27, 1),
    Sketcher.Constraint("Vertical", 16, 2, 29, 1),
    Sketcher.Constraint("Vertical", 12, 2, 33, 1),
    Sketcher.Constraint("Equal", 0, 4),
    Sketcher.Constraint("Equal", 4, 6),
    Sketcher.Constraint("Equal", 6, 10),
    Sketcher.Constraint("Radius", 5, Q("1.9 mm")),
    Sketcher.Constraint("Radius", 2, Q("3.74 mm")),
    Sketcher.Constraint("Distance", 0, Q("1.3 mm")),
    Sketcher.Constraint("DistanceY", 1, 1, -1, 1, Q("1.21 mm")),
    Sketcher.Constraint("DistanceX", -1, 1, 8, 1, Q("1.21 mm")),
    Sketcher.Constraint("Radius", 1, Q("1.593216 mm")),
    Sketcher.Constraint("DistanceX", -1, 1, 3, 3, Q("3.159311 mm")),
    Sketcher.Constraint("DistanceY", 7, 3, -1, 1, Q("3.159311 mm")),
    Sketcher.Constraint("DistanceX", -1, 1, 2, 1, Q("3.357948 mm")),
    Sketcher.Constraint("DistanceX", -1, 1, 3, 1, Q("2.725579 mm")),
    Sketcher.Constraint("DistanceY", 5, 1, -1, 1, Q("1.499532 mm")),
    Sketcher.Constraint("DistanceX", -1, 1, 1, 3, Q("2.280615 mm")),
    Sketcher.Constraint("DistanceX", -1, 1, 9, 3, Q("2.187326 mm")),
    Sketcher.Constraint("DistanceX", -1, 1, 0, 2, Q("3.057943 mm")),
])
sketch6.setExpression("Constraints[137]", "Params.sketch6_radius")
sketch6.setExpression("Constraints[138]", "Params.sketch6_radius2")
sketch6.setExpression("Constraints[139]", "Params.sketch6_length")
pocket4 = body.newObject("PartDesign::Pocket", "Pocket003")
pocket4.Profile = sketch6
pocket4.setExpression("Length", "Params.pocket4_length")
pocket4.Reversed = True

doc.recompute()
